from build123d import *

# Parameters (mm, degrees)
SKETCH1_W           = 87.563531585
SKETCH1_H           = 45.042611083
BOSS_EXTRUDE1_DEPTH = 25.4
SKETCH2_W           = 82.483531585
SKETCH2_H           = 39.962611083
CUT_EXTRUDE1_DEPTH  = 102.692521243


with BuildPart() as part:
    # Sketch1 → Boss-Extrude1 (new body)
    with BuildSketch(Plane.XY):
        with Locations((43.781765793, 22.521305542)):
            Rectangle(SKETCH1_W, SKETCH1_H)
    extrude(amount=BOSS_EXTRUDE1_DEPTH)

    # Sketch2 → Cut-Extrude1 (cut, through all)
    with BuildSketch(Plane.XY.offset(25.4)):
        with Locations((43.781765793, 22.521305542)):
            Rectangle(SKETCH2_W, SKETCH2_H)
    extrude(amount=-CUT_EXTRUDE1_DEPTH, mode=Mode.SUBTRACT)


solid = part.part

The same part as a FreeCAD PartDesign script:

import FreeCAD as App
import Part
import Sketcher

V = App.Vector
Q = App.Units.Quantity

doc = App.newDocument("Part")
body = doc.addObject("PartDesign::Body", "Body")

# Sketch on XY plane
sketch1 = body.newObject("Sketcher::SketchObject", "Sketch")
sketch1.AttachmentSupport = (doc.getObject("XY_Plane"), [""])
sketch1.MapMode = "FlatFace"
sketch1.addGeometry(Part.LineSegment(V(0, 45, 0), V(0, 0, 0)), False)
sketch1.addGeometry(Part.LineSegment(V(0, 0, 0), V(88, 0, 0)), False)
sketch1.addGeometry(Part.LineSegment(V(88, 0, 0), V(88, 45, 0)), False)
sketch1.addGeometry(Part.LineSegment(V(88, 45, 0), V(0, 45, 0)), False)
sketch1.addConstraint(Sketcher.Constraint("Coincident", 0, 2, 1, 1))
sketch1.addConstraint(Sketcher.Constraint("Coincident", 1, 2, 2, 1))
sketch1.addConstraint(Sketcher.Constraint("Coincident", 2, 2, 3, 1))
sketch1.addConstraint(Sketcher.Constraint("Coincident", 3, 2, 0, 1))
sketch1.addConstraint(Sketcher.Constraint("Vertical", 0))
sketch1.addConstraint(Sketcher.Constraint("Horizontal", 1))
sketch1.addConstraint(Sketcher.Constraint("Vertical", 2))
sketch1.addConstraint(Sketcher.Constraint("Horizontal", 3))
sketch1.addConstraint(Sketcher.Constraint("Coincident", 0, 2, -1, 1))
sketch1.addConstraint(Sketcher.Constraint("DistanceX", 1, 1, 1, 2, 87.563532))
sketch1.addConstraint(Sketcher.Constraint("DistanceY", 0, 2, 0, 1, 45.042611))
pad1 = body.newObject("PartDesign::Pad", "Pad")
pad1.Profile = sketch1
pad1.Length = Q("1 in")

# Sketch on XY plane
sketch2 = body.newObject("Sketcher::SketchObject", "Sketch001")
sketch2.AttachmentSupport = (doc.getObject("XY_Plane"), [""])
sketch2.MapMode = "FlatFace"
sketch2.AttachmentOffset = App.Placement(V(0, 0, 1 * 25.4), App.Rotation())
sketch2.addGeometry(Part.LineSegment(V(3, 43, 0), V(3, 3, 0)), False)
sketch2.addGeometry(Part.LineSegment(V(3, 3, 0), V(85, 3, 0)), False)
sketch2.addGeometry(Part.LineSegment(V(85, 3, 0), V(85, 43, 0)), False)
sketch2.addGeometry(Part.LineSegment(V(85, 43, 0), V(3, 43, 0)), False)
sketch2.addConstraint(Sketcher.Constraint("Coincident", 0, 2, 1, 1))
sketch2.addConstraint(Sketcher.Constraint("Coincident", 1, 2, 2, 1))
sketch2.addConstraint(Sketcher.Constraint("Coincident", 2, 2, 3, 1))
sketch2.addConstraint(Sketcher.Constraint("Coincident", 3, 2, 0, 1))
sketch2.addConstraint(Sketcher.Constraint("Vertical", 0))
sketch2.addConstraint(Sketcher.Constraint("Horizontal", 1))
sketch2.addConstraint(Sketcher.Constraint("Vertical", 2))
sketch2.addConstraint(Sketcher.Constraint("Horizontal", 3))
sketch2.addConstraint(Sketcher.Constraint("DistanceX", -1, 1, 0, 2, Q("0.1 in")))
sketch2.addConstraint(Sketcher.Constraint("DistanceY", -1, 1, 0, 2, Q("0.1 in")))
sketch2.addConstraint(Sketcher.Constraint("DistanceX", 1, 1, 1, 2, 82.483532))
sketch2.addConstraint(Sketcher.Constraint("DistanceY", 0, 2, 0, 1, 39.962611))
pocket1 = body.newObject("PartDesign::Pocket", "Pocket")
pocket1.Profile = sketch2
pocket1.Type = "ThroughAll"

doc.recompute()
